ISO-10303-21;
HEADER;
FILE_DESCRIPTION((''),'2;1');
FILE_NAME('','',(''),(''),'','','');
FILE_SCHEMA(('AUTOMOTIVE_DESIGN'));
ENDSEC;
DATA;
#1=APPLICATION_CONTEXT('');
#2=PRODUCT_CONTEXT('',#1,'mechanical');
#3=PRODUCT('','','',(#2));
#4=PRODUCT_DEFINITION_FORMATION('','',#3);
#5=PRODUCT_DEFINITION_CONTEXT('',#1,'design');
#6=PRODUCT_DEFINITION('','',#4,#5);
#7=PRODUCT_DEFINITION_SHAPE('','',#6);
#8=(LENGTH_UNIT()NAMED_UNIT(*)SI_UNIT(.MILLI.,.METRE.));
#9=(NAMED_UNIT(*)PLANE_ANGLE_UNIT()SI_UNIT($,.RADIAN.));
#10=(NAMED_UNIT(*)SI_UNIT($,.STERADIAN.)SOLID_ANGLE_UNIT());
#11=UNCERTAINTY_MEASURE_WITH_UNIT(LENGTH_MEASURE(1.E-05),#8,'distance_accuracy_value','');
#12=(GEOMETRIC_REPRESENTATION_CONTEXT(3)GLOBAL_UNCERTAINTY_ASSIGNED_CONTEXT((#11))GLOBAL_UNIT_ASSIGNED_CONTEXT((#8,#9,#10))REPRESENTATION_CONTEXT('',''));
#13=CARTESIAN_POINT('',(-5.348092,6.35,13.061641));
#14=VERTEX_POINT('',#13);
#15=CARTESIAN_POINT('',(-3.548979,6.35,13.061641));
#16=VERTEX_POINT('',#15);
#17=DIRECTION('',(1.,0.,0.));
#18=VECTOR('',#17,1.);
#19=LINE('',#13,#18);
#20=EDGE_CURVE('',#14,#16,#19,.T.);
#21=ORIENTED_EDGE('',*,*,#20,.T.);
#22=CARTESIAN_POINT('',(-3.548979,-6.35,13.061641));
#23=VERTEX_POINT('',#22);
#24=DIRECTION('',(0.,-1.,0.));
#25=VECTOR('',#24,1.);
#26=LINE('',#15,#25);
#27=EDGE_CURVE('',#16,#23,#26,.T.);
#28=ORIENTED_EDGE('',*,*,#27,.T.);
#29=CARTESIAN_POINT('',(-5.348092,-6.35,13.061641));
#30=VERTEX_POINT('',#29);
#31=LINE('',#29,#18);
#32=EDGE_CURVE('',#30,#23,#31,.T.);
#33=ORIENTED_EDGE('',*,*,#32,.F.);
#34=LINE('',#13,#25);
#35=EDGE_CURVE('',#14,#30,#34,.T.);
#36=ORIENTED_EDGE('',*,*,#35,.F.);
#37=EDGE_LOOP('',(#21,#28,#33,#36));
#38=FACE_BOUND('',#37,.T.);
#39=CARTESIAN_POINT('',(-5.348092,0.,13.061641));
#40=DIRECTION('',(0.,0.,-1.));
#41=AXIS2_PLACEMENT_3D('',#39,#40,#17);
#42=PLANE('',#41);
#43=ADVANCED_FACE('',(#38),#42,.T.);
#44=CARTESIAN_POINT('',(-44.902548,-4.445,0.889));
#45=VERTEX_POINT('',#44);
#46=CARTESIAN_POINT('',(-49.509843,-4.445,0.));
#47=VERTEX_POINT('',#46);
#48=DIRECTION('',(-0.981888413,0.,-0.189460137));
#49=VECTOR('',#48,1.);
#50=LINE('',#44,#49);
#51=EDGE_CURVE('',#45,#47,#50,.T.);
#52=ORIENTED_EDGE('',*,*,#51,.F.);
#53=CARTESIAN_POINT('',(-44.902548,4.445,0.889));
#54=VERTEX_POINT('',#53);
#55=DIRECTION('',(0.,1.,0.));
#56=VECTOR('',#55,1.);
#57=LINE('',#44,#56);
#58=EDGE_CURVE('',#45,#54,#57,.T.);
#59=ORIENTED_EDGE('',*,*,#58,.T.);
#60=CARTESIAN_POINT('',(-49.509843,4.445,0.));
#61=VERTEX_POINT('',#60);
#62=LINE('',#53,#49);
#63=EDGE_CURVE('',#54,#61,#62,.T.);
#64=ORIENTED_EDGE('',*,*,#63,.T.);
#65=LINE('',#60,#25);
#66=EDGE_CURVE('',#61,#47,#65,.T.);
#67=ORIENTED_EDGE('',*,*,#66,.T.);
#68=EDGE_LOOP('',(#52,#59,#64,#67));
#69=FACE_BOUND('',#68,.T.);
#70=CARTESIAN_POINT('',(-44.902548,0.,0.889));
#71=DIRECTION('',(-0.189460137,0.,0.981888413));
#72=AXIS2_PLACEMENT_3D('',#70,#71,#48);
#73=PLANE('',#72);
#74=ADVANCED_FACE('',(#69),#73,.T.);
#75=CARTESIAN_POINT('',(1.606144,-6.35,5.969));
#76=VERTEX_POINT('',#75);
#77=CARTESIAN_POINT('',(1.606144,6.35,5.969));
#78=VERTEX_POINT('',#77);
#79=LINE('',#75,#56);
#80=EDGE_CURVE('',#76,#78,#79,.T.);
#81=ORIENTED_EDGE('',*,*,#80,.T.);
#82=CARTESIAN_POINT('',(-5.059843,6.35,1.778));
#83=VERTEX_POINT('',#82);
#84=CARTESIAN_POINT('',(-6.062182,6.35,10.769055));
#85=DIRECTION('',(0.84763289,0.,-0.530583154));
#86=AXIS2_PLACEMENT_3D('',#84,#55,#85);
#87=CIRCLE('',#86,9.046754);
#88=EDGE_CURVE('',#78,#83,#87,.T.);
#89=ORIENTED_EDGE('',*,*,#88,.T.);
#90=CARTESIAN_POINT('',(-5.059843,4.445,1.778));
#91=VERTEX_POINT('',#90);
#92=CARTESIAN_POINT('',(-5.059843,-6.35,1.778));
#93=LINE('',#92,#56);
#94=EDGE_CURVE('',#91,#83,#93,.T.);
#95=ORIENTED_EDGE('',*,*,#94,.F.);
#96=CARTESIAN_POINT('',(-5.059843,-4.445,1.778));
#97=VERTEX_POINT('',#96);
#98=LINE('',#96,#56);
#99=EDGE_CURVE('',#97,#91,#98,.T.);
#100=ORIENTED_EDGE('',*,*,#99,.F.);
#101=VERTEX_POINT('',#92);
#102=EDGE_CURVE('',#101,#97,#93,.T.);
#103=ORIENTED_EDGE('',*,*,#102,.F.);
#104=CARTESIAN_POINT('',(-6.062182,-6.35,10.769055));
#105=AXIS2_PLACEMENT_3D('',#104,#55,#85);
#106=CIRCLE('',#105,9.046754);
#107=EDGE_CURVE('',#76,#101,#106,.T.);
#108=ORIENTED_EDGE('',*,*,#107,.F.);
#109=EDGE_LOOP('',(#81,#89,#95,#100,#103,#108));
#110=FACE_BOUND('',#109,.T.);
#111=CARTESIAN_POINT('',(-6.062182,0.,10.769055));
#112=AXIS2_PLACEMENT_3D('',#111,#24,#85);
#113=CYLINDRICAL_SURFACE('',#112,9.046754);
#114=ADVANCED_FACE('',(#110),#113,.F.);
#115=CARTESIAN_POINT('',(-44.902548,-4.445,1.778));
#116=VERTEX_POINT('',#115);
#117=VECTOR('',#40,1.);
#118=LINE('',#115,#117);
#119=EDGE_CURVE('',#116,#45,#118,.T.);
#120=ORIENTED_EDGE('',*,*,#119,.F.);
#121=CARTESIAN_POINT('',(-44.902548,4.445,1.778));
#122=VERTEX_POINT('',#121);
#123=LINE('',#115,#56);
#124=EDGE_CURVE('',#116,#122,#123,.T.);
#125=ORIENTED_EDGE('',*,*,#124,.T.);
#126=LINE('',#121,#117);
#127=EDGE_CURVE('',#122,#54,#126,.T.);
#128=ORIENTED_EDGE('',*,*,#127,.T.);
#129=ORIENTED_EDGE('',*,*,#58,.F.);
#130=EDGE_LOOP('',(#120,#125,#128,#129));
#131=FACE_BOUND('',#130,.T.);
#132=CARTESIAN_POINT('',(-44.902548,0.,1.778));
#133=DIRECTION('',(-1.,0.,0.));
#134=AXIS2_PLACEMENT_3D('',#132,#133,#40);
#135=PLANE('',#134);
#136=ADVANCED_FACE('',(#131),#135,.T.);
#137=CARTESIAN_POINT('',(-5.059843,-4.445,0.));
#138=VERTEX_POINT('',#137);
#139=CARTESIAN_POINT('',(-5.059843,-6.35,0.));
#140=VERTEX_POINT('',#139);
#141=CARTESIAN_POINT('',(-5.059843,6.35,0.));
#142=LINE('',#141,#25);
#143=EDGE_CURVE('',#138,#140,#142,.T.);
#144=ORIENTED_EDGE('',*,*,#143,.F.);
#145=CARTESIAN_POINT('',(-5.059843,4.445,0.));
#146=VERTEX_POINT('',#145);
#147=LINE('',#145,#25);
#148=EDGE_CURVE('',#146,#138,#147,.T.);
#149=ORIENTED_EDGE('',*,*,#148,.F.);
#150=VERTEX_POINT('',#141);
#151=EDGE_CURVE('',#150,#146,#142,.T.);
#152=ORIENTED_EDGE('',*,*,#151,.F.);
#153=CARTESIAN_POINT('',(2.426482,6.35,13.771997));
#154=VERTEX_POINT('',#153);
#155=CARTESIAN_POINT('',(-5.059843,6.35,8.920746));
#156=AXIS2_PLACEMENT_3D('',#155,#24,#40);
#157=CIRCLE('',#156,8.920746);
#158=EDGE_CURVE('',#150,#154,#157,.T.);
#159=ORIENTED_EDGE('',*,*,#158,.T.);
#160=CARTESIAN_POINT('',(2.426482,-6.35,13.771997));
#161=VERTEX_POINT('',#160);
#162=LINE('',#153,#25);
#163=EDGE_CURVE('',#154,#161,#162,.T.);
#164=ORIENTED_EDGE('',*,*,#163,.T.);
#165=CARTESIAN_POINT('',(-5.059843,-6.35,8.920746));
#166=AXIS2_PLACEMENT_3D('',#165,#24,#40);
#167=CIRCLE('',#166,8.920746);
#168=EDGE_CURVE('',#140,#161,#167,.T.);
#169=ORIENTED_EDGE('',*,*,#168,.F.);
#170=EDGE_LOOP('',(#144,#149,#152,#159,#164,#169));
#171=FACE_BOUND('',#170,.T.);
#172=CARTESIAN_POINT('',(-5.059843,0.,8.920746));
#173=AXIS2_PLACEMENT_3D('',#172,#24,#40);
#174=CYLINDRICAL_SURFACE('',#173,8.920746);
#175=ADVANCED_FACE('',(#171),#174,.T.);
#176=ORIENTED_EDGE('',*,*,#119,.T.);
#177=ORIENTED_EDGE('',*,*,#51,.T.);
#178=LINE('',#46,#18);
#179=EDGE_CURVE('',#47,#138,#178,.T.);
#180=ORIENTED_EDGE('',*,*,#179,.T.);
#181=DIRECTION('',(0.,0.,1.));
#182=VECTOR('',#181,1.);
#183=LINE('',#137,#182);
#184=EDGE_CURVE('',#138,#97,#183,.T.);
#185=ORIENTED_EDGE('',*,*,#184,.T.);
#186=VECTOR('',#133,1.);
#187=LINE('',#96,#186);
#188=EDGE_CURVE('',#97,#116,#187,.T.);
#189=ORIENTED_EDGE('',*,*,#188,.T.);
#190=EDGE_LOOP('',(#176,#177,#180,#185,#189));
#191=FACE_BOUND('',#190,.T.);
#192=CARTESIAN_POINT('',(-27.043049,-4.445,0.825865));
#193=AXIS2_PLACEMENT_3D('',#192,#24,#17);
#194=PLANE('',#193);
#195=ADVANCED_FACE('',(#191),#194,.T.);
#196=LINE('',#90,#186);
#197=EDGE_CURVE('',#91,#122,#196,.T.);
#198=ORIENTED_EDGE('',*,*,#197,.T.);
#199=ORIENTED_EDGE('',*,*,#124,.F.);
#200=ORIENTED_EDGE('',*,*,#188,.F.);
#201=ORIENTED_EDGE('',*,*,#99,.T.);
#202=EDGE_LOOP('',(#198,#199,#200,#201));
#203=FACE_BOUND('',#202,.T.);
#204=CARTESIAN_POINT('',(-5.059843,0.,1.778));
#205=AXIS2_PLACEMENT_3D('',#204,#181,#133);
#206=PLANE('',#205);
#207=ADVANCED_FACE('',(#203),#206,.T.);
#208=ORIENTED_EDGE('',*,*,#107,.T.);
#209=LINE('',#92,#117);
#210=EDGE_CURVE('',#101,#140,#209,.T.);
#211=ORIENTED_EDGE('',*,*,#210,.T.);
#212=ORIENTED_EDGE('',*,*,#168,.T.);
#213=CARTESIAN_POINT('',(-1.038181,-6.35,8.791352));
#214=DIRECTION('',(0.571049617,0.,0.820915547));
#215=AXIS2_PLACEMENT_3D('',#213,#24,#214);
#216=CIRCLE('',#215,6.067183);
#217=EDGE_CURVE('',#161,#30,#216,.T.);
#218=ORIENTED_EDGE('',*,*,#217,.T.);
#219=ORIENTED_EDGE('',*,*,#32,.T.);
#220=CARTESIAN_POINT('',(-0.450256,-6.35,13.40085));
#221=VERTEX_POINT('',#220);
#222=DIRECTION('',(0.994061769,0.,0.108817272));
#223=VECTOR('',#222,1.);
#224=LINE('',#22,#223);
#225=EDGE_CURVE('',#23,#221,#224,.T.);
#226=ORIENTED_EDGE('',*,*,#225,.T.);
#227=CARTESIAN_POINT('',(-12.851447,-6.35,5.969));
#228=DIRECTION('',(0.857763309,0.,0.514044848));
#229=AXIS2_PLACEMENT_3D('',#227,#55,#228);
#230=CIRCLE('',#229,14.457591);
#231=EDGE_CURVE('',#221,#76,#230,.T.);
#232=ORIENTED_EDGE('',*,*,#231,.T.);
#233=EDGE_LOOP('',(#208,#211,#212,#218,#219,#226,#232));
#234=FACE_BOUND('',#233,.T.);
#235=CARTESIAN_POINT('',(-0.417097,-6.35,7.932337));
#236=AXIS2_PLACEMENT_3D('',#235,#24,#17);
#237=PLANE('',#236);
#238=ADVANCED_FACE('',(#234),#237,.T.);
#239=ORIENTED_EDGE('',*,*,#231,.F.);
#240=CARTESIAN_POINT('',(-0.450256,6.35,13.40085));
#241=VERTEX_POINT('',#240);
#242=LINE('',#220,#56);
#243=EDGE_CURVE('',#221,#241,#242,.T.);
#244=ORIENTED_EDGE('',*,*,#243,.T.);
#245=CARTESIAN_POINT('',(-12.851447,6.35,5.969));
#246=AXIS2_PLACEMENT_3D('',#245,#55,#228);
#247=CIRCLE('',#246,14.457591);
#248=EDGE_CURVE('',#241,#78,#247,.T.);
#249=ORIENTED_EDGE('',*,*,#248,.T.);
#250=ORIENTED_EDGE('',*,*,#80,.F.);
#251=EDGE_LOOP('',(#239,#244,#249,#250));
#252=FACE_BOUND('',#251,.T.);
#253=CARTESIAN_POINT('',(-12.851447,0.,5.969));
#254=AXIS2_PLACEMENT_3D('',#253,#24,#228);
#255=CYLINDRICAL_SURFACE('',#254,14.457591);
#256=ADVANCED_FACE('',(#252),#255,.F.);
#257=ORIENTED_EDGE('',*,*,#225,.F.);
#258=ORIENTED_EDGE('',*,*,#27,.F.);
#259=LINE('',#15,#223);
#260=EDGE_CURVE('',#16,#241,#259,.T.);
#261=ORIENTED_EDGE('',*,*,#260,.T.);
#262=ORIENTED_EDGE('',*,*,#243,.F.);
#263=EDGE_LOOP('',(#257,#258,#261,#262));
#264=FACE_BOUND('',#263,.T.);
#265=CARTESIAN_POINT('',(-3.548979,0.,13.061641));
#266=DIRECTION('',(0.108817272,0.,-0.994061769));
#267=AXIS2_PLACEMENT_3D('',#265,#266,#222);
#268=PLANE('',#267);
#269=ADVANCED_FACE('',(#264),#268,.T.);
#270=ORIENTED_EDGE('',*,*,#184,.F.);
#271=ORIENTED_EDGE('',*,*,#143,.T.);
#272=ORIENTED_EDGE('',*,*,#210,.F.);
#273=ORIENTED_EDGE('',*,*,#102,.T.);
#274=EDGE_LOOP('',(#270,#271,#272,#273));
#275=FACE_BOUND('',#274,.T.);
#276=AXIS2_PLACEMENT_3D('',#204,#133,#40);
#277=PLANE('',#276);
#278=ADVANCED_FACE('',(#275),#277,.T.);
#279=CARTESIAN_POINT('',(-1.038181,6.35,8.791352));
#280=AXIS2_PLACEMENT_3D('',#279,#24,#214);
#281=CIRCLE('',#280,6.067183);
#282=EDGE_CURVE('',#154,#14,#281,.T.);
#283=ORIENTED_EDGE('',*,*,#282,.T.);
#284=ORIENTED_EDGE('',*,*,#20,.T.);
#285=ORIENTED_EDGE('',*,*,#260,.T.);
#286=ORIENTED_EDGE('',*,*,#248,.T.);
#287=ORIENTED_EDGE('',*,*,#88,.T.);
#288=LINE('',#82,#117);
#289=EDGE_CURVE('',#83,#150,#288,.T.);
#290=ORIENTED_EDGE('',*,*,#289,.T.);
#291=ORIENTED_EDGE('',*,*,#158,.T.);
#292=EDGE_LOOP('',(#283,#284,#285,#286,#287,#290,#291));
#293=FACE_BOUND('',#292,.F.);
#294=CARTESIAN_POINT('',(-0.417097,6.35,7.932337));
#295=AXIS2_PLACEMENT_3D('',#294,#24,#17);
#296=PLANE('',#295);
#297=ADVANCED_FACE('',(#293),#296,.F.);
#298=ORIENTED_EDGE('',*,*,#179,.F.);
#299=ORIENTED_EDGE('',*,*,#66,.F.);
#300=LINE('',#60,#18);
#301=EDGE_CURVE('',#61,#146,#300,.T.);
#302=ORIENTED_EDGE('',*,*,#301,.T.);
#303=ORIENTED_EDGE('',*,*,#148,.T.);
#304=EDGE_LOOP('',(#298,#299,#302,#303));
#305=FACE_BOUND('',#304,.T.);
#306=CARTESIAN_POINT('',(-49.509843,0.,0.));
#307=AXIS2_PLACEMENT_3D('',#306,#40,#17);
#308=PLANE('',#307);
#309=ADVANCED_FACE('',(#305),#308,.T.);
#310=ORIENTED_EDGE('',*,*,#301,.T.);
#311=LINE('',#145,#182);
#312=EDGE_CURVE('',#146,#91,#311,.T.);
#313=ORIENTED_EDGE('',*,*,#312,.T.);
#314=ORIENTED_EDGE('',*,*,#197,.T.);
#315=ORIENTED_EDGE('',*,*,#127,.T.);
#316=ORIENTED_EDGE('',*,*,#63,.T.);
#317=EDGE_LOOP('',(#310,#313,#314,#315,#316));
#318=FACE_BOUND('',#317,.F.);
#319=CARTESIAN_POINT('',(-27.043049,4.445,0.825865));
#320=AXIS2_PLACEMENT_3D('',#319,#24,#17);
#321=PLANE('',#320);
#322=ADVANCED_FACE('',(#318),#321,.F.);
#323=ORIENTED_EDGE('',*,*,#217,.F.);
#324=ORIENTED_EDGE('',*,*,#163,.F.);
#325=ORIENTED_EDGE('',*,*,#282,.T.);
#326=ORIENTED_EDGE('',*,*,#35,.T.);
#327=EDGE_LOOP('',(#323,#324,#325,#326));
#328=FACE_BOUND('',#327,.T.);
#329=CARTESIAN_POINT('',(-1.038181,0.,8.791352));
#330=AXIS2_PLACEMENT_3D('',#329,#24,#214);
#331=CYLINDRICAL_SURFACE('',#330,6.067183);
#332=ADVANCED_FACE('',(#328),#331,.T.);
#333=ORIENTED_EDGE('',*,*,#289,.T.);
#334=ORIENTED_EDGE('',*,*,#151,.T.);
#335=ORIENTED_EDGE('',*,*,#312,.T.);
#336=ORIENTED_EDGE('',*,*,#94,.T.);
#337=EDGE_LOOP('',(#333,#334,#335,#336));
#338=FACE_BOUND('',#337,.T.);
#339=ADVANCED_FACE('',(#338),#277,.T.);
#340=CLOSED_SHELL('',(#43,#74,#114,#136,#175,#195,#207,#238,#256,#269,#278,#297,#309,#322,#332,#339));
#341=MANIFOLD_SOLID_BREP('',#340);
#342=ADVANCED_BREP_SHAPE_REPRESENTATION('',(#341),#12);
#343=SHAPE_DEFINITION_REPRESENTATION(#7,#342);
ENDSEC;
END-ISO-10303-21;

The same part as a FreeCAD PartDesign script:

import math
import FreeCAD as App
import Part
import Sketcher
from FreeCAD import Vector
Q = App.Units.Quantity


def add_polygon(sketch, points):
    """Adds a closed chain of lines whose ends are joined by coincident constraints."""
    first, n = sketch.GeometryCount, len(points)
    for a, b in zip(points, points[1:] + points[:1]):
        sketch.addGeometry(Part.LineSegment(App.Vector(*a, 0), App.Vector(*b, 0)), False)
    for i in range(n):
        sketch.addConstraint(Sketcher.Constraint("Coincident", first + i, 2, first + (i + 1) % n, 1))

doc = App.newDocument("Part")
body = doc.addObject("PartDesign::Body", "Body")

# Sketch on XZ plane
sketch1 = body.newObject("Sketcher::SketchObject", "Sketch")
sketch1.AttachmentSupport = (doc.getObject("XZ_Plane"), [""])
sketch1.MapMode = "FlatFace"
sketch1.addGeometry(Part.LineSegment(Vector(-5.059843, 1.778, 0), Vector(-5.059843, 0, 0)), False)
sketch1.addGeometry(Part.ArcOfCircle(Part.Circle(Vector(-5.059843, 8.920746, 0), Vector(0, 0, 1), 8.920746), math.radians(-90), math.radians(32.943845)), False)
sketch1.addGeometry(Part.ArcOfCircle(Part.Circle(Vector(-1.038181, 8.791352, 0), Vector(0, 0, 1), 6.067183), math.radians(55.176549), math.radians(135.264586)), False)
sketch1.addGeometry(Part.LineSegment(Vector(-5.348092, 13.061641, 0), Vector(-3.548979, 13.061641, 0)), False)
sketch1.addGeometry(Part.LineSegment(Vector(-3.548979, 13.061641, 0), Vector(-0.450256, 13.40085, 0)), False)
sketch1.addGeometry(Part.ArcOfCircle(Part.Circle(Vector(-12.851447, 5.969, 0), Vector(0, 0, 1), 14.457591), math.radians(0), math.radians(30.933633)), False)
sketch1.addGeometry(Part.ArcOfCircle(Part.Circle(Vector(-6.062182, 10.769055, 0), Vector(0, 0, 1), 9.046754), math.radians(-83.638834), math.radians(-32.044865)), False)
sketch1.addConstraint(Sketcher.Constraint("Coincident", 0, 2, 1, 1))
sketch1.addConstraint(Sketcher.Constraint("Coincident", 1, 2, 2, 1))
sketch1.addConstraint(Sketcher.Constraint("Coincident", 2, 2, 3, 1))
sketch1.addConstraint(Sketcher.Constraint("Coincident", 3, 2, 4, 1))
sketch1.addConstraint(Sketcher.Constraint("Coincident", 4, 2, 5, 2))
sketch1.addConstraint(Sketcher.Constraint("Coincident", 5, 1, 6, 2))
sketch1.addConstraint(Sketcher.Constraint("Coincident", 6, 1, 0, 1))
sketch1.addConstraint(Sketcher.Constraint("Vertical", 0))
sketch1.addConstraint(Sketcher.Constraint("Horizontal", 3))
sketch1.addConstraint(Sketcher.Constraint("PointOnObject", 0, 2, -1))
sketch1.addConstraint(Sketcher.Constraint("Vertical", 1, 3, 0, 2))
sketch1.addConstraint(Sketcher.Constraint("DistanceY", 0, 2, 0, 1, Q("0.07 in")))
sketch1.addConstraint(Sketcher.Constraint("DistanceY", -1, 1, 5, 3, Q("0.235 in")))
sketch1.addConstraint(Sketcher.Constraint("DistanceY", -1, 1, 5, 1, Q("0.235 in")))
sketch1.addConstraint(Sketcher.Constraint("Radius", 5, Q("14.457591 mm")))
sketch1.addConstraint(Sketcher.Constraint("Radius", 1, Q("8.920746 mm")))
sketch1.addConstraint(Sketcher.Constraint("Radius", 2, Q("6.067183 mm")))
sketch1.addConstraint(Sketcher.Constraint("Radius", 6, Q("9.046754 mm")))
sketch1.addConstraint(Sketcher.Constraint("DistanceX", 6, 3, 2, 3, Q("5.024001 mm")))
sketch1.addConstraint(Sketcher.Constraint("DistanceX", 4, 2, 5, 1, Q("2.0564 mm")))
sketch1.addConstraint(Sketcher.Constraint("DistanceX", 3, 1, 3, 2, Q("1.799114 mm")))
sketch1.addConstraint(Sketcher.Constraint("DistanceX", 2, 3, -1, 1, Q("1.038181 mm")))
sketch1.addConstraint(Sketcher.Constraint("DistanceX", -1, 1, 1, 2, Q("2.426482 mm")))
sketch1.addConstraint(Sketcher.Constraint("DistanceY", -1, 1, 2, 2, Q("13.061641 mm")))
sketch1.addConstraint(Sketcher.Constraint("DistanceX", 3, 2, -1, 1, Q("3.548979 mm")))
pad1 = body.newObject("PartDesign::Pad", "Pad")
pad1.Profile = sketch1
pad1.Length = Q("0.5 in")
pad1.Midplane = True

# Sketch on XZ plane
sketch2 = body.newObject("Sketcher::SketchObject", "Sketch001")
sketch2.AttachmentSupport = (doc.getObject("XZ_Plane"), [""])
sketch2.MapMode = "FlatFace"
add_polygon(sketch2, [(-44.902548, 0.889), (-49.509843, 0), (-5.059843, 0), (-5.059843, 1.778), (-44.902548, 1.778)])  # lines 0-4
sketch2.addConstraint(Sketcher.Constraint("Horizontal", 1))
sketch2.addConstraint(Sketcher.Constraint("Vertical", 2))
sketch2.addConstraint(Sketcher.Constraint("Horizontal", 3))
sketch2.addConstraint(Sketcher.Constraint("Vertical", 4))
sketch2.addConstraint(Sketcher.Constraint("PointOnObject", 0, 2, -1))
sketch2.addConstraint(Sketcher.Constraint("DistanceX", 1, 1, 1, 2, Q("1.75 in")))
sketch2.addConstraint(Sketcher.Constraint("DistanceY", 2, 1, 2, 2, Q("0.07 in")))
sketch2.addConstraint(Sketcher.Constraint("DistanceY", 4, 2, 4, 1, Q("0.035 in")))
sketch2.addConstraint(Sketcher.Constraint("Distance", 0, Q("4.69228 mm")))
sketch2.addConstraint(Sketcher.Constraint("DistanceX", 3, 2, -1, 1, Q("44.902548 mm")))
pad2 = body.newObject("PartDesign::Pad", "Pad001")
pad2.Profile = sketch2
pad2.Length = Q("0.35 in")
pad2.Midplane = True

doc.recompute()
